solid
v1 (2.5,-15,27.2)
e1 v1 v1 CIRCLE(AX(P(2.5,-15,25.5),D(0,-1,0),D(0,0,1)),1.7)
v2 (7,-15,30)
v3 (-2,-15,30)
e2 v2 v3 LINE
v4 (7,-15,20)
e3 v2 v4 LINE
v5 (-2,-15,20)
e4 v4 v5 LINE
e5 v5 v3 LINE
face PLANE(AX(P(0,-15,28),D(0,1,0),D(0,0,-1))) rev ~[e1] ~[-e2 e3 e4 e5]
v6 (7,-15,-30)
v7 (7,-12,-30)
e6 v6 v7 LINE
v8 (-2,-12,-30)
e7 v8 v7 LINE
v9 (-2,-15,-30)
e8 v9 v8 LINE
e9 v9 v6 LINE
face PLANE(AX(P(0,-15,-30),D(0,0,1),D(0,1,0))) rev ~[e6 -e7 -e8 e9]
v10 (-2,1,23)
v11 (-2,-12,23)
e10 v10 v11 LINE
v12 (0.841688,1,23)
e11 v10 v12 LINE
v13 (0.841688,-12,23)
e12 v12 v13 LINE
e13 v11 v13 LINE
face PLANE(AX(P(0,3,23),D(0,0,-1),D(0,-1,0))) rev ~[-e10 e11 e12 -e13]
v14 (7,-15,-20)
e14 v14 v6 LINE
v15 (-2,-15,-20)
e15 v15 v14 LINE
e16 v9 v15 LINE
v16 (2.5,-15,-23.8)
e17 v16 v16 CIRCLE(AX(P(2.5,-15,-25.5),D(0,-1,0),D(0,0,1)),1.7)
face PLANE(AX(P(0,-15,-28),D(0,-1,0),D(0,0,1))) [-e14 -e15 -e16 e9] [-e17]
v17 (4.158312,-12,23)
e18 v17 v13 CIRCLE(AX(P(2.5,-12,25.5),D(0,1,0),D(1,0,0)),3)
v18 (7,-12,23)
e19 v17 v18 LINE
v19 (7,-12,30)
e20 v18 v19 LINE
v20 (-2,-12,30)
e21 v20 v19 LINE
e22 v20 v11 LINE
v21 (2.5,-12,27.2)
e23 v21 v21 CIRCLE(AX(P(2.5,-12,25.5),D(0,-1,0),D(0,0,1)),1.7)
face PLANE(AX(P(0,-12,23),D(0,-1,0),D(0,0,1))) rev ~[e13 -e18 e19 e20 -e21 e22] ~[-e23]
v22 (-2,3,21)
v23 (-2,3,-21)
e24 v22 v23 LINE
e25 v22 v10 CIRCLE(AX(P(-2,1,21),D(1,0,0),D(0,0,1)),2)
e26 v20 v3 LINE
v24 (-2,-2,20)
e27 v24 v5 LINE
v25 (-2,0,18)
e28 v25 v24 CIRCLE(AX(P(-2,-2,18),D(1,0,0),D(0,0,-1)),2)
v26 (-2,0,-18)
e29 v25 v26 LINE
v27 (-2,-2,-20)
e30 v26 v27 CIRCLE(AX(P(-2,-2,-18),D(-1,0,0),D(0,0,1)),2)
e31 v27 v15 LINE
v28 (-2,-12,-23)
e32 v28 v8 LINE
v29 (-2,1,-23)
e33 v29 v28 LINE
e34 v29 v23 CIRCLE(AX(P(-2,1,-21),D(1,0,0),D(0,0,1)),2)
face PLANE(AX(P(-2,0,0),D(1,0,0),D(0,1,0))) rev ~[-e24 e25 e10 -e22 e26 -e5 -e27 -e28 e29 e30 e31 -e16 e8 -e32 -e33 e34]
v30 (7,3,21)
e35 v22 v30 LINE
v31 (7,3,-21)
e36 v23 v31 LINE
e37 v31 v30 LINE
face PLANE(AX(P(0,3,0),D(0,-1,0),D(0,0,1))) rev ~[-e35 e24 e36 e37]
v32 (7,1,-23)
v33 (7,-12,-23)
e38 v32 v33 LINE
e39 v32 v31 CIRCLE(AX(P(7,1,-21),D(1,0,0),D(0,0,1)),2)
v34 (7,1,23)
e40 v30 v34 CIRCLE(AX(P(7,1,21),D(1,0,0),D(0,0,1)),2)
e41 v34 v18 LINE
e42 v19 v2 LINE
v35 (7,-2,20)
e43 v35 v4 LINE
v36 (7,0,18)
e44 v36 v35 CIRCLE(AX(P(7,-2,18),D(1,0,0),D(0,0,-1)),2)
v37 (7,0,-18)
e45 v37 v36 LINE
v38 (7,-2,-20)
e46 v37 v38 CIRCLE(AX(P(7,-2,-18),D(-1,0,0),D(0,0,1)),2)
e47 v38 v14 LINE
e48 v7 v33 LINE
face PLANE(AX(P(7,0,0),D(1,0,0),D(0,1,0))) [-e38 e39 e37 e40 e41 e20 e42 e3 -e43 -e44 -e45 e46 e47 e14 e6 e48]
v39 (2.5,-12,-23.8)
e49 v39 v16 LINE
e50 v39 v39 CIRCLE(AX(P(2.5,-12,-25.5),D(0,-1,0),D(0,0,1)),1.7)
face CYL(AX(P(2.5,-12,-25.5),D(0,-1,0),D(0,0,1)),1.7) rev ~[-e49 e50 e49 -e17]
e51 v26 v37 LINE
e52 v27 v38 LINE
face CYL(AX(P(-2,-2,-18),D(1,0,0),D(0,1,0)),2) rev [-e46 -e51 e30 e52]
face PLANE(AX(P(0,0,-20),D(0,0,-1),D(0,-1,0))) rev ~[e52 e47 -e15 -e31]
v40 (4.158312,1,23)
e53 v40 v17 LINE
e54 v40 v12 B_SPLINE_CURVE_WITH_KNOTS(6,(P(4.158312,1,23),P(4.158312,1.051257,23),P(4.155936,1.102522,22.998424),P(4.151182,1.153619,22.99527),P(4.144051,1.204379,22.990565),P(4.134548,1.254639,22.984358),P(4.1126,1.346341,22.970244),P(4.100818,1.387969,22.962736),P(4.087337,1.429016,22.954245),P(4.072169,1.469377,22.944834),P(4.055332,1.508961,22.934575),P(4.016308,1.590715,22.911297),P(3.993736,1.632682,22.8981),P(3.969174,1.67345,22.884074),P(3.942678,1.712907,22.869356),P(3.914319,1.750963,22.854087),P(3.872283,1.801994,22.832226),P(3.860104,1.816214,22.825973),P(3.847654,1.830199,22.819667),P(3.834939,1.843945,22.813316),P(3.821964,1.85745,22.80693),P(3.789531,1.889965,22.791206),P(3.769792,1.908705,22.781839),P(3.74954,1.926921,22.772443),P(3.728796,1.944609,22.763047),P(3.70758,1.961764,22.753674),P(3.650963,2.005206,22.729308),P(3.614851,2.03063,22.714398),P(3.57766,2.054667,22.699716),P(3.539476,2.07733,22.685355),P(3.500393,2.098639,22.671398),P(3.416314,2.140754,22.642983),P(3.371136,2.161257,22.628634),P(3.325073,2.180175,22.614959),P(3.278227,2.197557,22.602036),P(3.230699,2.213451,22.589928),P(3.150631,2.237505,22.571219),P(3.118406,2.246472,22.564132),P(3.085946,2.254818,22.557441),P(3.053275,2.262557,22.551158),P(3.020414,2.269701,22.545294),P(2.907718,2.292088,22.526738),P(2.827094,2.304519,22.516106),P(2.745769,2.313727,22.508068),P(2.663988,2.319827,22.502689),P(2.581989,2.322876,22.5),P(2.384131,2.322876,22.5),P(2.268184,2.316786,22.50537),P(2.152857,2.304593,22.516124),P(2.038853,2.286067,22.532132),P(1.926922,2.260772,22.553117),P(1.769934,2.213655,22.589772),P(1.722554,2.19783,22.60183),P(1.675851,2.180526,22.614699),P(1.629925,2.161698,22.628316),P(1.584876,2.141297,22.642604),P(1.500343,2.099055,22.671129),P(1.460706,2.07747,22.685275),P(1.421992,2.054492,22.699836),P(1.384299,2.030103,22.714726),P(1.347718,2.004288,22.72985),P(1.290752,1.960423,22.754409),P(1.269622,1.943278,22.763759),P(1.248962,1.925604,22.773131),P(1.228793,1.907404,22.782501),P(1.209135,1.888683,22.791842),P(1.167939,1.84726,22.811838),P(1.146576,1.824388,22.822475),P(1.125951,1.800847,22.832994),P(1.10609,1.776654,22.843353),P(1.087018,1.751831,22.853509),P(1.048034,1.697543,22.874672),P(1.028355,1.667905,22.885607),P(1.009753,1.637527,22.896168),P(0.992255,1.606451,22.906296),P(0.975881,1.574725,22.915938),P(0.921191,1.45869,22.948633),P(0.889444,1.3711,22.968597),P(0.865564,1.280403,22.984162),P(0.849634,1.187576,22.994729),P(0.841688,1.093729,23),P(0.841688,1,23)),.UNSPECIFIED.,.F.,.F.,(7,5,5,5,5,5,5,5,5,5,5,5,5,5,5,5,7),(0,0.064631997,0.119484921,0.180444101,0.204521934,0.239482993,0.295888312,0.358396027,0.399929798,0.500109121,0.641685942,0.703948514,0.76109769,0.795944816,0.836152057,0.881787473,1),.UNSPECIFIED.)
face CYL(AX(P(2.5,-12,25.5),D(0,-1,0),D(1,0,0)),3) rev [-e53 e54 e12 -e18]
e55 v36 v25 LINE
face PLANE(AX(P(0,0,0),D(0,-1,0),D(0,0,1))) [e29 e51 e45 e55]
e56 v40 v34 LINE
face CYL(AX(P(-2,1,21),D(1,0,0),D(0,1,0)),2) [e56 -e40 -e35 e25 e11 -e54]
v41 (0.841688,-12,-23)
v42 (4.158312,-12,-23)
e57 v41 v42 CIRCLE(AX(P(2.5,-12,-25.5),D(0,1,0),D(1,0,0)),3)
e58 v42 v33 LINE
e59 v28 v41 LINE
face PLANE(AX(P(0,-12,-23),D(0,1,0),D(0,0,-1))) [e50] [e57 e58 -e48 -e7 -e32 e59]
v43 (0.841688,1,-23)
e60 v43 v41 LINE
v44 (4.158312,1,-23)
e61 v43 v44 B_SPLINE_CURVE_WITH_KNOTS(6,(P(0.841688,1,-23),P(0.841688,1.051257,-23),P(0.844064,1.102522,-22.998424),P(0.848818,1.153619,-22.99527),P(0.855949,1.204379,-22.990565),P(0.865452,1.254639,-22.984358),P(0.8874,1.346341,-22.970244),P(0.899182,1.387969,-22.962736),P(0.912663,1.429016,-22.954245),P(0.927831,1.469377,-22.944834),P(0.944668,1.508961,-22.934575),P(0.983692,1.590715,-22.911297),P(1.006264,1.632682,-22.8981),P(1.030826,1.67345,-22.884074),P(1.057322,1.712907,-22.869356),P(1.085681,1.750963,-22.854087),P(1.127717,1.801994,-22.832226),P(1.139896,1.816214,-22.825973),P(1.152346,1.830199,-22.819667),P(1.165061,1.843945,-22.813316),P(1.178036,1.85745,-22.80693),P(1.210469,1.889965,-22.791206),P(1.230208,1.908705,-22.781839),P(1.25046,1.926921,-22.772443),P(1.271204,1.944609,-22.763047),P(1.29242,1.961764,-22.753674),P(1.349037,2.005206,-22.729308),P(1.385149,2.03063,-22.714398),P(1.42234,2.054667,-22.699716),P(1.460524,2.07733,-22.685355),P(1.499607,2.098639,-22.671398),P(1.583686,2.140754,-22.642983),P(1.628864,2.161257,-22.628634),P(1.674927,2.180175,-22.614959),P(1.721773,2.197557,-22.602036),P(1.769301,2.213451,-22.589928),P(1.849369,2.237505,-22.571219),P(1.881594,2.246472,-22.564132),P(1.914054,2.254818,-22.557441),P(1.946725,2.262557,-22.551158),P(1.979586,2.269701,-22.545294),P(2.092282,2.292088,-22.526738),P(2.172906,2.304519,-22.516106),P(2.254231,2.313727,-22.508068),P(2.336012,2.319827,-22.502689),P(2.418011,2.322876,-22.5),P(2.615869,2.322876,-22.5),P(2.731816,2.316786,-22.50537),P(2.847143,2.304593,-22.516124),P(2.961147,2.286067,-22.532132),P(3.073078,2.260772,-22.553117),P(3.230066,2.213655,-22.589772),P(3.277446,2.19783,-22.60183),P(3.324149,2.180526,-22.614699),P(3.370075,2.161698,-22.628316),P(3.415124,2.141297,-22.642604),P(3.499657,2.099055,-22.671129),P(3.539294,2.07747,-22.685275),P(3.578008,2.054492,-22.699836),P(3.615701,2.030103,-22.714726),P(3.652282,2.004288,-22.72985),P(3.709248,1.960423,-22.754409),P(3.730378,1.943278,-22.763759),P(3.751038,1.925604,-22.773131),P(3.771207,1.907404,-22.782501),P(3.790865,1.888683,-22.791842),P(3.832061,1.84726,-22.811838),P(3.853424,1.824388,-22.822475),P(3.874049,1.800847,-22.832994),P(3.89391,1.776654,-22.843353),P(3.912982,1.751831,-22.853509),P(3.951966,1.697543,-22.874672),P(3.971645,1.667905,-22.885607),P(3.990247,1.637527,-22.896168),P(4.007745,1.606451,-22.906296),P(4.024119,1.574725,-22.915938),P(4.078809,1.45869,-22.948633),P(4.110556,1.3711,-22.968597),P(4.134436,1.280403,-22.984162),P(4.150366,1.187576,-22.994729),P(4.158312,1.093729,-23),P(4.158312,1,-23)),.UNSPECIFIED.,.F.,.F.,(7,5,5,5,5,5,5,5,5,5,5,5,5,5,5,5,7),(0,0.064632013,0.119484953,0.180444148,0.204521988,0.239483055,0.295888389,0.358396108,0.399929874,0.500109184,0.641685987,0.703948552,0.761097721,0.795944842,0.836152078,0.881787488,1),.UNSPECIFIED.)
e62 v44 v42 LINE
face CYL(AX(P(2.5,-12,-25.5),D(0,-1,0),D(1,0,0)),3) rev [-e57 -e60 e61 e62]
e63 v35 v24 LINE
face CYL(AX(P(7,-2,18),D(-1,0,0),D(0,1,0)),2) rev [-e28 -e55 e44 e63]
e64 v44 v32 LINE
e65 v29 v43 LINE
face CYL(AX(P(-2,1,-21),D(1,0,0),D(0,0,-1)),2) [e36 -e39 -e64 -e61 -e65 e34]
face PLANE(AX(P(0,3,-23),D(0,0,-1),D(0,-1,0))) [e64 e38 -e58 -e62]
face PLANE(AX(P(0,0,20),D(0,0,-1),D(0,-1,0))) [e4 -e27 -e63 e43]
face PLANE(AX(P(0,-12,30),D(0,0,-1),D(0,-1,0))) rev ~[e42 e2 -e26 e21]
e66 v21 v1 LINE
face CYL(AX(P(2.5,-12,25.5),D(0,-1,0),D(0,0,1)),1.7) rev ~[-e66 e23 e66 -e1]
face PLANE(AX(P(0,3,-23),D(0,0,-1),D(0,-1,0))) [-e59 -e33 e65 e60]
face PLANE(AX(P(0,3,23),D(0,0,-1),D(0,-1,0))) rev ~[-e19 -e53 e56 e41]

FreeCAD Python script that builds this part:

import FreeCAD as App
import Part
import Sketcher
Q = App.Units.Quantity


def edges_at(feature, points):
    """Names of the edges that pass closest to the given points."""
    edges = feature.Shape.Edges
    near = lambda p: min(range(len(edges)), key=lambda i: edges[i].distToShape(Part.Vertex(*p))[0])
    return sorted({f"Edge{near(p) + 1}" for p in points})


def add_polygon(sketch, points):
    """Adds a closed chain of lines whose ends are joined by coincident constraints."""
    first, n = sketch.GeometryCount, len(points)
    for a, b in zip(points, points[1:] + points[:1]):
        sketch.addGeometry(Part.LineSegment(App.Vector(*a, 0), App.Vector(*b, 0)), False)
    for i in range(n):
        sketch.addConstraint(Sketcher.Constraint("Coincident", first + i, 2, first + (i + 1) % n, 1))

doc = App.newDocument("Part")
body = doc.addObject("PartDesign::Body", "Body")

# Sketch on YZ plane
sketch1 = doc.addObject("Sketcher::SketchObject", "Sketch")
body.addObject(sketch1)
sketch1.AttachmentSupport = (doc.YZ_Plane, [""])
sketch1.MapMode = "FlatFace"
add_polygon(sketch1, [(0, 20), (0, -20), (-15, -20), (-15, -30), (-12, -30), (-12, -23), (3, -23), (3, 23), (-12, 23), (-12, 30), (-15, 30), (-15, 20)])  # lines 0-11
sketch1.addConstraint([
    Sketcher.Constraint("Vertical", 0),
    Sketcher.Constraint("Horizontal", 1),
    Sketcher.Constraint("Vertical", 2),
    Sketcher.Constraint("Horizontal", 3),
    Sketcher.Constraint("Vertical", 4),
    Sketcher.Constraint("Horizontal", 5),
    Sketcher.Constraint("Vertical", 6),
    Sketcher.Constraint("Horizontal", 7),
    Sketcher.Constraint("Vertical", 8),
    Sketcher.Constraint("Horizontal", 9),
    Sketcher.Constraint("Vertical", 10),
    Sketcher.Constraint("Horizontal", 11),
    Sketcher.Constraint("Symmetric", 0, 2, 11, 2, -1, 1),
    Sketcher.Constraint("Symmetric", 4, 2, 7, 2, -1),
    Sketcher.Constraint("Symmetric", 2, 2, 9, 2, -1),
    Sketcher.Constraint("Equal", 1, 5),
    Sketcher.Constraint("DistanceX", 1, 2, 1, 1, Q("15 mm")),
    Sketcher.Constraint("DistanceX", 3, 1, 3, 2, Q("3 mm")),
    Sketcher.Constraint("DistanceY", 0, 2, -1, 1, Q("20 mm")),
    Sketcher.Constraint("DistanceY", 4, 2, -1, 1, Q("23 mm")),
    Sketcher.Constraint("DistanceY", 2, 2, 2, 1, Q("10 mm")),
])
pad1 = doc.addObject("PartDesign::Pad", "Pad")
body.addObject(pad1)
pad1.Profile = sketch1
pad1.Type = "TwoLengths"
pad1.Length = 7
pad1.Length2 = 2

# Sketch on XZ plane
sketch2 = doc.addObject("Sketcher::SketchObject", "Sketch001")
body.addObject(sketch2)
sketch2.AttachmentSupport = (doc.XZ_Plane, [""])
sketch2.MapMode = "FlatFace"
sketch2.AttachmentOffset = App.Placement(App.Vector(0, 0, 12), App.Rotation())
sketch2.addGeometry([
    Part.Circle(App.Vector(2.5, 25.5, 0), App.Vector(0, 0, 1), 1.7),
    Part.Circle(App.Vector(2.5, -25.5, 0), App.Vector(0, 0, 1), 1.7),
], False)
sketch2.addConstraint([
    Sketcher.Constraint("Equal", 0, 1),
    Sketcher.Constraint("Symmetric", 0, 3, 1, 3, -1),
    Sketcher.Constraint("Diameter", 0, Q("3.4 mm")),
    Sketcher.Constraint("DistanceY", 1, 3, 0, 3, Q("51 mm")),
    Sketcher.Constraint("DistanceX", -1, 1, 0, 3, Q("2.5 mm")),
])
doc.recompute()
hole = doc.addObject("PartDesign::Hole", "Hole")
body.addObject(hole)
hole.Profile = sketch2
hole.ThreadType = "None"
hole.Diameter = 3.4
hole.DepthType = "ThroughAll"
hole.Reversed = True
doc.recompute()

fillet = doc.addObject("PartDesign::Fillet", "Fillet")
body.addObject(fillet)
fillet.Base = (hole, edges_at(hole, [
    (2.5, 3, 23),
    (2.5, 0, 20),
    (2.5, 0, -20),
    (2.5, 3, -23),
]))
fillet.Radius = 2

# Sketch on XZ plane
sketch3 = doc.addObject("Sketcher::SketchObject", "Sketch002")
body.addObject(sketch3)
sketch3.AttachmentSupport = (doc.XZ_Plane, [""])
sketch3.MapMode = "FlatFace"
sketch3.AttachmentOffset = App.Placement(App.Vector(0, 0, 12), App.Rotation())
sketch3.addGeometry([
    Part.Circle(App.Vector(2.5, 25.5, 0), App.Vector(0, 0, 1), 3),
    Part.Circle(App.Vector(2.5, 25.5, 0), App.Vector(0, 0, 1), 1.7),
    Part.Circle(App.Vector(2.5, -25.5, 0), App.Vector(0, 0, 1), 3),
    Part.Circle(App.Vector(2.5, -25.5, 0), App.Vector(0, 0, 1), 1.7),
], False)
sketch3.addConstraint([
    Sketcher.Constraint("Coincident", 1, 3, 0, 3),
    Sketcher.Constraint("Coincident", 3, 3, 2, 3),
    Sketcher.Constraint("Equal", 0, 2),
    Sketcher.Constraint("Equal", 1, 3),
    Sketcher.Constraint("Symmetric", 0, 3, 2, 3, -1),
    Sketcher.Constraint("Diameter", 0, Q("6 mm")),
    Sketcher.Constraint("Diameter", 1, Q("3.4 mm")),
    Sketcher.Constraint("DistanceY", 2, 3, 0, 3, Q("51 mm")),
    Sketcher.Constraint("DistanceX", -1, 1, 0, 3, Q("2.5 mm")),
])
pocket1 = doc.addObject("PartDesign::Pocket", "Pocket")
body.addObject(pocket1)
pocket1.Profile = sketch3
pocket1.Length = 20

doc.recompute()
